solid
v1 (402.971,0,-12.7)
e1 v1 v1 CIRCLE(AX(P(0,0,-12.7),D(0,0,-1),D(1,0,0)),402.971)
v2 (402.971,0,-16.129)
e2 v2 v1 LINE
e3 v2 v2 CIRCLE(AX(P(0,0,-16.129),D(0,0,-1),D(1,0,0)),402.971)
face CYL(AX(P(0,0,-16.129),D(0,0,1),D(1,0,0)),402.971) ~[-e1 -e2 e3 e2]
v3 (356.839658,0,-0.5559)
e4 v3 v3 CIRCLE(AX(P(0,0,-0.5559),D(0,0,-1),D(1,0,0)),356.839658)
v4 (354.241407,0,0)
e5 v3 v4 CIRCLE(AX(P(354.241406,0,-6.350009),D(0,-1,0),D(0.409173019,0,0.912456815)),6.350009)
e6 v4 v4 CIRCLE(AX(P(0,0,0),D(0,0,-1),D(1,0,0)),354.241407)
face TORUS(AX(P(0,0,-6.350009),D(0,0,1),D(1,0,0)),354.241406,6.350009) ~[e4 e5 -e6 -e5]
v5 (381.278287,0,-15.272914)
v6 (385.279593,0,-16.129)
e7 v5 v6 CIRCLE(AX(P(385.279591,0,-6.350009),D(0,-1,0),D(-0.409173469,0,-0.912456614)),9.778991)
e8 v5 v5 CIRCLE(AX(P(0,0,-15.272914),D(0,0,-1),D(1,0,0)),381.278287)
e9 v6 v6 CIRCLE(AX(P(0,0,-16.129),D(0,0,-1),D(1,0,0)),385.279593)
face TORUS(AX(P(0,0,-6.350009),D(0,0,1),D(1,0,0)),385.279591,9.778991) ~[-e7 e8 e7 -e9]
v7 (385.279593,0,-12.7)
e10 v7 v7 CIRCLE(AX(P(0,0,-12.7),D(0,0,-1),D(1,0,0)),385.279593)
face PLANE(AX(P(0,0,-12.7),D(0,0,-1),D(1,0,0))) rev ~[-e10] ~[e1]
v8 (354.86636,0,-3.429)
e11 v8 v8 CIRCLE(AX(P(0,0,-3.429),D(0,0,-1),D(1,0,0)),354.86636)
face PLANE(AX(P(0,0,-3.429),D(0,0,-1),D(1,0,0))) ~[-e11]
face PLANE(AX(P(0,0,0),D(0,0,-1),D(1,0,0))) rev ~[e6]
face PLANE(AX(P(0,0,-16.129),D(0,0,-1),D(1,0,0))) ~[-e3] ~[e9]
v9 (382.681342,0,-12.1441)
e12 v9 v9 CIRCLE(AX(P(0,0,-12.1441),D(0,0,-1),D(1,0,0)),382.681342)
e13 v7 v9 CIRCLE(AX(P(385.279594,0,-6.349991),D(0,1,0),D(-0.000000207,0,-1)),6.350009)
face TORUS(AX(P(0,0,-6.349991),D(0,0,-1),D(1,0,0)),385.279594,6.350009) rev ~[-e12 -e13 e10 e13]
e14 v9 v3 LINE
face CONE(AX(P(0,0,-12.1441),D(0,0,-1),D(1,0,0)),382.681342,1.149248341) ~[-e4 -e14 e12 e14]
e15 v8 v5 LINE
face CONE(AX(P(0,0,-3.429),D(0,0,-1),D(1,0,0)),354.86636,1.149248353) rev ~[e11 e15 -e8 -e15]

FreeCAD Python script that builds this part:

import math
import FreeCAD as App
import Part
import Sketcher
Q = App.Units.Quantity

doc = App.newDocument("Part")
params = doc.addObject("Spreadsheet::Sheet", "Params")
for row, (alias, value) in enumerate([
    ("sketch1_height", "0.135 in"),
    ("sketch1_length", "1.115 in"),
    ("revolution_angle", "360 deg"),
], start=1):
    params.set(f"A{row}", alias)
    params.set(f"B{row}", "=" + value)
    params.setAlias(f"B{row}", alias)

body = doc.addObject("PartDesign::Body", "Body")

sketch1 = body.newObject("Sketcher::SketchObject", "Sketch")
sketch1.AttachmentSupport = (doc.getObject("XZ_Plane"), [""])
sketch1.MapMode = "FlatFace"
sketch1.addGeometry(Part.LineSegment(App.Vector(354.2, 0, 0), App.Vector(0, 0, 0)), False)
sketch1.addGeometry(Part.LineSegment(App.Vector(0, 0, 0), App.Vector(0, -3.4, 0)), False)
sketch1.addGeometry(Part.LineSegment(App.Vector(0, -3.4, 0), App.Vector(354.9, -3.4, 0)), False)
sketch1.addGeometry(Part.LineSegment(App.Vector(354.9, -3.4, 0), App.Vector(381.3, -15.3, 0)), False)
sketch1.addGeometry(Part.ArcOfCircle(Part.Circle(App.Vector(385.3, -6.4, 0), App.Vector(0, 0, 1), 9.8), math.radians(-114), math.radians(-90)), False)
sketch1.addGeometry(Part.LineSegment(App.Vector(385.3, -16.1, 0), App.Vector(403, -16.1, 0)), False)
sketch1.addGeometry(Part.LineSegment(App.Vector(403, -16.1, 0), App.Vector(403, -12.7, 0)), False)
sketch1.addGeometry(Part.LineSegment(App.Vector(403, -12.7, 0), App.Vector(385.3, -12.7, 0)), False)
sketch1.addGeometry(Part.ArcOfCircle(Part.Circle(App.Vector(385.3, -6.3, 0), App.Vector(0, 0, 1), 6.4), math.radians(-114), math.radians(-90)), False)
sketch1.addGeometry(Part.LineSegment(App.Vector(382.7, -12.1, 0), App.Vector(356.8, -0.6, 0)), False)
sketch1.addGeometry(Part.ArcOfCircle(Part.Circle(App.Vector(354.2, -6.4, 0), App.Vector(0, 0, 1), 6.4), math.radians(66), math.radians(90)), False)
sketch1.addConstraint(Sketcher.Constraint("Coincident", 0, 2, 1, 1))
sketch1.addConstraint(Sketcher.Constraint("Coincident", 1, 2, 2, 1))
sketch1.addConstraint(Sketcher.Constraint("Coincident", 2, 2, 3, 1))
sketch1.addConstraint(Sketcher.Constraint("Tangent", 3, 2, 4, 1))
sketch1.addConstraint(Sketcher.Constraint("Tangent", 4, 2, 5, 1))
sketch1.addConstraint(Sketcher.Constraint("Coincident", 5, 2, 6, 1))
sketch1.addConstraint(Sketcher.Constraint("Coincident", 6, 2, 7, 1))
sketch1.addConstraint(Sketcher.Constraint("Tangent", 7, 2, 8, 2))
sketch1.addConstraint(Sketcher.Constraint("Tangent", 8, 1, 9, 1))
sketch1.addConstraint(Sketcher.Constraint("Tangent", 9, 2, 10, 1))
sketch1.addConstraint(Sketcher.Constraint("Tangent", 10, 2, 0, 1))
sketch1.addConstraint(Sketcher.Constraint("Horizontal", 0))
sketch1.addConstraint(Sketcher.Constraint("Vertical", 1))
sketch1.addConstraint(Sketcher.Constraint("Horizontal", 2))
sketch1.addConstraint(Sketcher.Constraint("Horizontal", 5))
sketch1.addConstraint(Sketcher.Constraint("Vertical", 6))
sketch1.addConstraint(Sketcher.Constraint("Horizontal", 7))
sketch1.addConstraint(Sketcher.Constraint("Coincident", 0, 2, -1, 1))
sketch1.addConstraint(Sketcher.Constraint("Equal", 8, 10))
sketch1.addConstraint(Sketcher.Constraint("Parallel", 3, 9))
sketch1.addConstraint(Sketcher.Constraint("Horizontal", 4, 3, 10, 3))
sketch1.addConstraint(Sketcher.Constraint("Vertical", 8, 3, 4, 2))
sketch1.addConstraint(Sketcher.Constraint("Equal", 1, 6))
sketch1.addConstraint(Sketcher.Constraint("DistanceY", 6, 2, -1, 1, Q("0.5 in")))
sketch1.addConstraint(Sketcher.Constraint("DistanceY", 1, 2, 1, 1, Q("0.135 in")))
sketch1.addConstraint(Sketcher.Constraint("Distance", 9, Q("1.115 in")))
sketch1.addConstraint(Sketcher.Constraint("DistanceX", -1, 1, 5, 2, Q("15.865 in")))
sketch1.addConstraint(Sketcher.Constraint("Radius", 4, 9.778991))
sketch1.addConstraint(Sketcher.Constraint("DistanceX", 2, 1, 2, 2, 354.86636))
sketch1.setExpression("Constraints[24]", "Params.sketch1_height")
sketch1.setExpression("Constraints[25]", "Params.sketch1_length")
revolution = body.newObject("PartDesign::Revolution", "Revolution")
revolution.Profile = sketch1
revolution.ReferenceAxis = (sketch1, ["V_Axis"])
revolution.setExpression("Angle", "Params.revolution_angle")

doc.recompute()
